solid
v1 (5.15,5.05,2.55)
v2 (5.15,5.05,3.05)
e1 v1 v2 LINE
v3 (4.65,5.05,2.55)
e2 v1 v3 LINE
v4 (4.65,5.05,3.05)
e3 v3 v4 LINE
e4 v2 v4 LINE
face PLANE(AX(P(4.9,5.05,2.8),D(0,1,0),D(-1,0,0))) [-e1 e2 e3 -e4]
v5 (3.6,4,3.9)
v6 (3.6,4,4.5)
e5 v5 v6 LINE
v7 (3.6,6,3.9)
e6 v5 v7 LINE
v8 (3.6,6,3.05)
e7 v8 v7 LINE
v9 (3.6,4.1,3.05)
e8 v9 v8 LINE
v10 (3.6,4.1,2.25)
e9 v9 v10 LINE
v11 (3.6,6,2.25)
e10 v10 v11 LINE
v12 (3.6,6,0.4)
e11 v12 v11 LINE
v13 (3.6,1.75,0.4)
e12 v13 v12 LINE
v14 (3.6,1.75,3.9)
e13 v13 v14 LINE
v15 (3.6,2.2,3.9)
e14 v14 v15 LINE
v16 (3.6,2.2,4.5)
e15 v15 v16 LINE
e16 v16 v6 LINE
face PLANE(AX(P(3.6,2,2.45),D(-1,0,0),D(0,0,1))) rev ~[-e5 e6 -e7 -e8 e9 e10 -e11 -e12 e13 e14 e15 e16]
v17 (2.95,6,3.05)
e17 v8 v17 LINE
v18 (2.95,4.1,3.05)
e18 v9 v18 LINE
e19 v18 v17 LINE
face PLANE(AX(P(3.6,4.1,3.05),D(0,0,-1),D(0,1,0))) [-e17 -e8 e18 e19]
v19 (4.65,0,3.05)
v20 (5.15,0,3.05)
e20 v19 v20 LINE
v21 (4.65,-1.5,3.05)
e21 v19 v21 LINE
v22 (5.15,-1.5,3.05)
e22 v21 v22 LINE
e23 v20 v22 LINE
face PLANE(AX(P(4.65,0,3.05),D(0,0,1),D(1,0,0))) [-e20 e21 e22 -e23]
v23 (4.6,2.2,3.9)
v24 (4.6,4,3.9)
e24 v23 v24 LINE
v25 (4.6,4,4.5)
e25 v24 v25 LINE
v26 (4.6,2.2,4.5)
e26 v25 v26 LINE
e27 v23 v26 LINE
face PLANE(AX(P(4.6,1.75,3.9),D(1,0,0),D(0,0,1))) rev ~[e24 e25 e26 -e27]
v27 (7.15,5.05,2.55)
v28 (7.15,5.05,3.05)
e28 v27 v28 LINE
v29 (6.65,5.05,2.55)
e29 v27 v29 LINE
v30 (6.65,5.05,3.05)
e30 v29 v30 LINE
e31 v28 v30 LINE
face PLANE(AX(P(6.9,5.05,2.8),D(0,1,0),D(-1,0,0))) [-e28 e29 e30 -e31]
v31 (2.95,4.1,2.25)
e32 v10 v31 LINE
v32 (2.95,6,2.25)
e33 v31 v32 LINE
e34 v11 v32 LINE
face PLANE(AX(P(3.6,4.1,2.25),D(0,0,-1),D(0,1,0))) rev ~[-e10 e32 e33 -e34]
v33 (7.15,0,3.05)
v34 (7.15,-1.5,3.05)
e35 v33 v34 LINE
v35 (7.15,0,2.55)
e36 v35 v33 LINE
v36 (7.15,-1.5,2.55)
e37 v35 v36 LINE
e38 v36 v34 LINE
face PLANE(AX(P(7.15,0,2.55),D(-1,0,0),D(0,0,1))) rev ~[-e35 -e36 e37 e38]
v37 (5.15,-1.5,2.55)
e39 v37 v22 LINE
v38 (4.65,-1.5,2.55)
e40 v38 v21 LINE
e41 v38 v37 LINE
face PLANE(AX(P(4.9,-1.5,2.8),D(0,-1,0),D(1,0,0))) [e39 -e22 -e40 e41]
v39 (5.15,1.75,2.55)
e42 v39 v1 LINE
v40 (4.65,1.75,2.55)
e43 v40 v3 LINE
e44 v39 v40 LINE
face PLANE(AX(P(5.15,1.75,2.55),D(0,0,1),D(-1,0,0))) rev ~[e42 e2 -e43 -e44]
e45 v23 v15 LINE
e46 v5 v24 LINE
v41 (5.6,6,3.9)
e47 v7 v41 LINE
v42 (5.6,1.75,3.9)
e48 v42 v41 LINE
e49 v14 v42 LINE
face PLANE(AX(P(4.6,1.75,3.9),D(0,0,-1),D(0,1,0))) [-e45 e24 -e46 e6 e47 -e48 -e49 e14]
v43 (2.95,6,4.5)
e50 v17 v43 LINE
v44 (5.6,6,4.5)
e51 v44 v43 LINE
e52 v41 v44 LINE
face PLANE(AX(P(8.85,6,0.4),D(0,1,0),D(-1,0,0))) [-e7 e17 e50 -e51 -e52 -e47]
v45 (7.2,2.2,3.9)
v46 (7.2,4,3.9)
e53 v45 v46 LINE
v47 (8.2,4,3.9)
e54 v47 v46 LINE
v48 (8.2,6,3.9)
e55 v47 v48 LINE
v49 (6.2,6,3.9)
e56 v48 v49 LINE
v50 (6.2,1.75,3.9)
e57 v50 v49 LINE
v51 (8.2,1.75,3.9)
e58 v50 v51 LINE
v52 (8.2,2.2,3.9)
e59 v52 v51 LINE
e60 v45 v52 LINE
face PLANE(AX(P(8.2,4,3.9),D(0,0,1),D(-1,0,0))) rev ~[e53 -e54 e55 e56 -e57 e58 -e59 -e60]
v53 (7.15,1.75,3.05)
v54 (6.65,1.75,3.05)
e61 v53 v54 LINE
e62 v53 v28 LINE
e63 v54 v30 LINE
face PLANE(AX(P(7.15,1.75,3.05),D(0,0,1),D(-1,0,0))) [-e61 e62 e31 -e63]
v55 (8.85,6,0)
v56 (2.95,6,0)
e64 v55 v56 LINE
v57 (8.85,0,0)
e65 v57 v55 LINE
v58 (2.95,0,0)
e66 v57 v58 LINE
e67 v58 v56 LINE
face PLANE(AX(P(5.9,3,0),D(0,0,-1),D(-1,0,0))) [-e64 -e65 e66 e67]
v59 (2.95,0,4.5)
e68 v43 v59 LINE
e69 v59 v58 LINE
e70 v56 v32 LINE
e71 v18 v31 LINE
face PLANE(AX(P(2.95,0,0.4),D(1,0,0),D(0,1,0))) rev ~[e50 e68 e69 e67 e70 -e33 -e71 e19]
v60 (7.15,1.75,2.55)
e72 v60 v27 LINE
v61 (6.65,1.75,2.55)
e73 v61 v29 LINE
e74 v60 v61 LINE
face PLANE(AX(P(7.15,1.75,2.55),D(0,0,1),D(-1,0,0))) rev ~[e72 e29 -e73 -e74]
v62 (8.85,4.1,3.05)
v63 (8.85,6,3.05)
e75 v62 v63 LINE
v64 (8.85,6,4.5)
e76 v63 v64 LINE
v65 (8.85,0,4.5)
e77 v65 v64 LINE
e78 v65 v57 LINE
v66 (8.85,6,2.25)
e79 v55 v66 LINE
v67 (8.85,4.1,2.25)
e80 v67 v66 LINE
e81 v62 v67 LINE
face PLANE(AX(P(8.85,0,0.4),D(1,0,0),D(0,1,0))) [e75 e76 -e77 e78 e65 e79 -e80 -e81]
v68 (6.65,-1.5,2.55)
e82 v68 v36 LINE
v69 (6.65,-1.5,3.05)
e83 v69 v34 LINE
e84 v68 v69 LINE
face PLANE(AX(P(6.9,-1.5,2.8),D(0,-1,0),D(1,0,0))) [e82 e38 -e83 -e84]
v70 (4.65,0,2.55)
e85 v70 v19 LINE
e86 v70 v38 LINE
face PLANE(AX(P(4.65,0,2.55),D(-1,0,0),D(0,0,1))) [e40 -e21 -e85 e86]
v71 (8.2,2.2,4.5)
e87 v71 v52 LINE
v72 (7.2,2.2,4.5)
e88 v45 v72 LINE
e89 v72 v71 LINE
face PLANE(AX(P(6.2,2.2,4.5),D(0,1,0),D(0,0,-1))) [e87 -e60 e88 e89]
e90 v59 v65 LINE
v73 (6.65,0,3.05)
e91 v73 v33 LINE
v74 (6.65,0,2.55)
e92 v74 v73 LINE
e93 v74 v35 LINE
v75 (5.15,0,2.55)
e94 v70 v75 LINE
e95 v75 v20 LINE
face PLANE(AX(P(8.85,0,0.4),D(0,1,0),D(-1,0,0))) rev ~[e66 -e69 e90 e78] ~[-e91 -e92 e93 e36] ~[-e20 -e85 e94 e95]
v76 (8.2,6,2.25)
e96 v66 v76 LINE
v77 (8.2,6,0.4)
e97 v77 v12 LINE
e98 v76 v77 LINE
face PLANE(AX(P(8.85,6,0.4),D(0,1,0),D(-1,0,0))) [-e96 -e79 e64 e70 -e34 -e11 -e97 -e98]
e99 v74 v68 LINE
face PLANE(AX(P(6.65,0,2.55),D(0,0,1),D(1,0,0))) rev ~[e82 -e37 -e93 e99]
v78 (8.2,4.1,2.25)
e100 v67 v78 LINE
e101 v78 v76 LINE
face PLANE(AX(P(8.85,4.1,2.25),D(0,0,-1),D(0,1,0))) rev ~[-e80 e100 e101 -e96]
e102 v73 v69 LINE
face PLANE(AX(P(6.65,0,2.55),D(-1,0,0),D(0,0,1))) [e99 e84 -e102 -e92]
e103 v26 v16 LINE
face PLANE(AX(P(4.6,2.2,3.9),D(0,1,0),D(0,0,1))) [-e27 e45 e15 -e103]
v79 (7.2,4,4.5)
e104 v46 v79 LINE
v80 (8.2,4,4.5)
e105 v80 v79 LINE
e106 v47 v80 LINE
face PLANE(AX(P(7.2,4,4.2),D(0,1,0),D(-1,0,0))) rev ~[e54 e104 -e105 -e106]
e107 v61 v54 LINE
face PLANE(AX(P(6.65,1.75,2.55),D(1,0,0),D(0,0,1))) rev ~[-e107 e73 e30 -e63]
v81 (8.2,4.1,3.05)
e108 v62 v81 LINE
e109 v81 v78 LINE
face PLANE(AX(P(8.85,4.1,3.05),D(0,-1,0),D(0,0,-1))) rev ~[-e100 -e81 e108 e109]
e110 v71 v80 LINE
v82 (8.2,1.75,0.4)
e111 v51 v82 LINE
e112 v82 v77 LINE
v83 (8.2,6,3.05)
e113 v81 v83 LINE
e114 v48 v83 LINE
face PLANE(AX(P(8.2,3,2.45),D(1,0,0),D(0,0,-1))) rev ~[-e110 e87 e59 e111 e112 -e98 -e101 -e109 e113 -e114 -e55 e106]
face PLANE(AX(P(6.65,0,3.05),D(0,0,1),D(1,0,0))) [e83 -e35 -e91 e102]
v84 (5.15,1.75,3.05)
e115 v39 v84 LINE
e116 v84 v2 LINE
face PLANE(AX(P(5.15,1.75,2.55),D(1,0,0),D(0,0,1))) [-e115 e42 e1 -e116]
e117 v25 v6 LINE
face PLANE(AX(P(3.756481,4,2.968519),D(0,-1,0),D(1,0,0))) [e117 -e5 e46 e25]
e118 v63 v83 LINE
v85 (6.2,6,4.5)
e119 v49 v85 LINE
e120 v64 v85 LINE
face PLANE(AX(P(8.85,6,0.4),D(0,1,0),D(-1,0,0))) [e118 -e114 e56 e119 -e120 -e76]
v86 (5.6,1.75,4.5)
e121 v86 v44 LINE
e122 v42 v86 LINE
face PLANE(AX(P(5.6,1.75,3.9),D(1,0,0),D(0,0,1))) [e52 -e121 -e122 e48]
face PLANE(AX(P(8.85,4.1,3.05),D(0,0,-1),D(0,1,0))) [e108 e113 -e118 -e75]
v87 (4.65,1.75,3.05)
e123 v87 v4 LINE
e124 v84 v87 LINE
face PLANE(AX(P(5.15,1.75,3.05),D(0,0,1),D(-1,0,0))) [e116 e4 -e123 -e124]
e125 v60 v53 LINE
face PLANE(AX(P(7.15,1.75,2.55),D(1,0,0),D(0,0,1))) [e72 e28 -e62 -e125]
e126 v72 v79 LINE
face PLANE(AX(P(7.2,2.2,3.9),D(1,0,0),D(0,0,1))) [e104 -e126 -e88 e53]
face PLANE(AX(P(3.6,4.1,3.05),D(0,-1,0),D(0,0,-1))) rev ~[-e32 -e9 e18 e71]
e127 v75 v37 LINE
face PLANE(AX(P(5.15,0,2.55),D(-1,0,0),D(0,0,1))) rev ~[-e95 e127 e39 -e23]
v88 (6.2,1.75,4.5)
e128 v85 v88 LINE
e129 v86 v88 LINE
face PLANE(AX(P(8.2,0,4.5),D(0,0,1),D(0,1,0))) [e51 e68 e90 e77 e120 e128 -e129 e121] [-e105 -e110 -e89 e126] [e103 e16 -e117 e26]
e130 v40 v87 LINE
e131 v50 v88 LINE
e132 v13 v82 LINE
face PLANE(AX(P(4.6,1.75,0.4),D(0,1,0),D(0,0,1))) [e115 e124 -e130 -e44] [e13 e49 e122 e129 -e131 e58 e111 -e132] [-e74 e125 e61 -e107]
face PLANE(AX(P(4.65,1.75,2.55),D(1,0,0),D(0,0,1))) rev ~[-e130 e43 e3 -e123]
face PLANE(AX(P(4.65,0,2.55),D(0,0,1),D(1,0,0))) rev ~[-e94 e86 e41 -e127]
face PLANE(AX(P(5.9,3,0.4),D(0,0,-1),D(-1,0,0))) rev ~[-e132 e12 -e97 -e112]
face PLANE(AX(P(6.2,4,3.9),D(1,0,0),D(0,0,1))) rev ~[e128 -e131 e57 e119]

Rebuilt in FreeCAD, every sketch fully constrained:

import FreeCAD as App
import Part
import Sketcher
Q = App.Units.Quantity


def add_polygon(sketch, points):
    """Adds a closed chain of lines whose ends are joined by coincident constraints."""
    first, n = sketch.GeometryCount, len(points)
    for a, b in zip(points, points[1:] + points[:1]):
        sketch.addGeometry(Part.LineSegment(App.Vector(*a, 0), App.Vector(*b, 0)), False)
    for i in range(n):
        sketch.addConstraint(Sketcher.Constraint("Coincident", first + i, 2, first + (i + 1) % n, 1))

doc = App.newDocument("Part")
body = doc.addObject("PartDesign::Body", "Body")

# Sketch on YZ plane
sketch1 = body.newObject("Sketcher::SketchObject", "Sketch")
sketch1.AttachmentSupport = (doc.getObject("YZ_Plane"), [""])
sketch1.MapMode = "FlatFace"
sketch1.AttachmentOffset = App.Placement(App.Vector(0, 0, 4.6), App.Rotation())
add_polygon(sketch1, [(1.8, 4.5), (1.8, 0.4), (0, 0.4), (0, 4.5)])  # lines 0-3
sketch1.addConstraint([
    Sketcher.Constraint("Vertical", 0),
    Sketcher.Constraint("Horizontal", 1),
    Sketcher.Constraint("Vertical", 2),
    Sketcher.Constraint("Horizontal", 3),
    Sketcher.Constraint("PointOnObject", 1, 2, -2),
    Sketcher.Constraint("DistanceY", 0, 2, 0, 1, Q("4.1 mm")),
    Sketcher.Constraint("DistanceX", 1, 2, 1, 1, Q("1.75 mm")),
    Sketcher.Constraint("DistanceY", -1, 1, 0, 2, Q("0.4 mm")),
])
pad1 = body.newObject("PartDesign::Pad", "Pad")
pad1.Profile = sketch1
pad1.Length = 1.6

# Sketch on YZ plane
sketch2 = body.newObject("Sketcher::SketchObject", "Sketch001")
sketch2.AttachmentSupport = (doc.getObject("YZ_Plane"), [""])
sketch2.MapMode = "FlatFace"
sketch2.AttachmentOffset = App.Placement(App.Vector(0, 0, 6.2), App.Rotation())
add_polygon(sketch2, [(1.75, 0.4), (1.75, 3.9), (2.2, 3.9), (2.2, 4.5), (0, 4.5), (0, 0.4)])  # lines 0-5
sketch2.addConstraint([
    Sketcher.Constraint("Vertical", 0),
    Sketcher.Constraint("Horizontal", 1),
    Sketcher.Constraint("Vertical", 2),
    Sketcher.Constraint("Horizontal", 3),
    Sketcher.Constraint("Vertical", 4),
    Sketcher.Constraint("Horizontal", 5),
    Sketcher.Constraint("PointOnObject", 3, 2, -2),
    Sketcher.Constraint("DistanceX", 3, 2, 3, 1, Q("2.2 mm")),
    Sketcher.Constraint("DistanceY", 0, 1, 0, 2, Q("3.5 mm")),
    Sketcher.Constraint("DistanceY", 2, 1, 2, 2, Q("0.6 mm")),
    Sketcher.Constraint("DistanceX", 1, 1, 1, 2, Q("0.45 mm")),
    Sketcher.Constraint("DistanceY", -1, 1, 0, 2, Q("3.9 mm")),
])
pad2 = body.newObject("PartDesign::Pad", "Pad001")
pad2.Profile = sketch2
pad2.Length = 2

# Sketch on XZ plane
sketch3 = body.newObject("Sketcher::SketchObject", "Sketch002")
sketch3.AttachmentSupport = (doc.getObject("XZ_Plane"), [""])
sketch3.MapMode = "FlatFace"
sketch3.AttachmentOffset = App.Placement(App.Vector(0, 0, -2.2), App.Rotation())
add_polygon(sketch3, [(7.2, 4.5), (7.2, 3.9), (6.2, 3.9), (6.2, 4.5)])  # lines 0-3
sketch3.addConstraint([
    Sketcher.Constraint("Vertical", 0),
    Sketcher.Constraint("Horizontal", 1),
    Sketcher.Constraint("Vertical", 2),
    Sketcher.Constraint("Horizontal", 3),
    Sketcher.Constraint("DistanceX", 1, 2, 1, 1, Q("1 mm")),
    Sketcher.Constraint("DistanceY", 0, 2, 0, 1, Q("0.6 mm")),
    Sketcher.Constraint("DistanceX", -1, 1, 0, 2, Q("7.2 mm")),
    Sketcher.Constraint("DistanceY", -1, 1, 0, 2, Q("3.9 mm")),
])
pad3 = body.newObject("PartDesign::Pad", "Pad002")
pad3.Profile = sketch3
pad3.Length = 1.8
pad3.Reversed = True

# Sketch on XZ plane
sketch4 = body.newObject("Sketcher::SketchObject", "Sketch003")
sketch4.AttachmentSupport = (doc.getObject("XZ_Plane"), [""])
sketch4.MapMode = "FlatFace"
sketch4.AttachmentOffset = App.Placement(App.Vector(0, 0, -1.75), App.Rotation())
add_polygon(sketch4, [(5.6, 4.5), (5.6, 3.9), (4.6, 3.9), (4.6, 4.5)])  # lines 0-3
sketch4.addConstraint([
    Sketcher.Constraint("Vertical", 0),
    Sketcher.Constraint("Horizontal", 1),
    Sketcher.Constraint("Vertical", 2),
    Sketcher.Constraint("Horizontal", 3),
    Sketcher.Constraint("DistanceX", 1, 2, 1, 1, Q("1 mm")),
    Sketcher.Constraint("DistanceY", 0, 2, 0, 1, Q("0.6 mm")),
    Sketcher.Constraint("DistanceX", -1, 1, 0, 2, Q("5.6 mm")),
    Sketcher.Constraint("DistanceY", -1, 1, 0, 2, Q("3.9 mm")),
])
pad4 = body.newObject("PartDesign::Pad", "Pad003")
pad4.Profile = sketch4
pad4.Length = 2.25
pad4.Reversed = True

# Sketch on YZ plane
sketch5 = body.newObject("Sketcher::SketchObject", "Sketch004")
sketch5.AttachmentSupport = (doc.getObject("YZ_Plane"), [""])
sketch5.MapMode = "FlatFace"
sketch5.AttachmentOffset = App.Placement(App.Vector(0, 0, 4.6), App.Rotation())
add_polygon(sketch5, [(1.75, 0.4), (0, 0.4), (0, 4.5), (2.2, 4.5), (2.2, 3.9), (1.75, 3.9)])  # lines 0-5
sketch5.addConstraint([
    Sketcher.Constraint("Horizontal", 0),
    Sketcher.Constraint("Vertical", 1),
    Sketcher.Constraint("Horizontal", 2),
    Sketcher.Constraint("Vertical", 3),
    Sketcher.Constraint("Horizontal", 4),
    Sketcher.Constraint("Vertical", 5),
    Sketcher.Constraint("PointOnObject", 0, 2, -2),
    Sketcher.Constraint("DistanceX", 2, 1, 2, 2, Q("2.2 mm")),
    Sketcher.Constraint("DistanceY", 1, 1, 1, 2, Q("4.1 mm")),
    Sketcher.Constraint("DistanceY", 3, 2, 3, 1, Q("0.6 mm")),
    Sketcher.Constraint("DistanceX", 0, 2, 0, 1, Q("1.75 mm")),
    Sketcher.Constraint("DistanceY", -1, 1, 0, 2, Q("0.4 mm")),
])
pad5 = body.newObject("PartDesign::Pad", "Pad004")
pad5.Profile = sketch5
pad5.Length = 1
pad5.Reversed = True

# Sketch on YZ plane
sketch6 = body.newObject("Sketcher::SketchObject", "Sketch005")
sketch6.AttachmentSupport = (doc.getObject("YZ_Plane"), [""])
sketch6.MapMode = "FlatFace"
sketch6.AttachmentOffset = App.Placement(App.Vector(0, 0, 3.6), App.Rotation())
add_polygon(sketch6, [(4, 0.4), (0, 0.4), (0, 4.5), (4, 4.5)])  # lines 0-3
sketch6.addConstraint([
    Sketcher.Constraint("Horizontal", 0),
    Sketcher.Constraint("Vertical", 1),
    Sketcher.Constraint("Horizontal", 2),
    Sketcher.Constraint("Vertical", 3),
    Sketcher.Constraint("PointOnObject", 0, 2, -2),
    Sketcher.Constraint("DistanceX", 0, 2, 0, 1, Q("4 mm")),
    Sketcher.Constraint("DistanceY", 1, 1, 1, 2, Q("4.1 mm")),
    Sketcher.Constraint("DistanceY", -1, 1, 0, 2, Q("0.4 mm")),
])
pad6 = body.newObject("PartDesign::Pad", "Pad005")
pad6.Profile = sketch6
pad6.Length = 0.65
pad6.Reversed = True

# Sketch on XZ plane
sketch7 = body.newObject("Sketcher::SketchObject", "Sketch006")
sketch7.AttachmentSupport = (doc.getObject("XZ_Plane"), [""])
sketch7.MapMode = "FlatFace"
sketch7.AttachmentOffset = App.Placement(App.Vector(0, 0, -4), App.Rotation())
add_polygon(sketch7, [(8.2, 4.5), (8.2, 3.9), (6.2, 3.9), (6.2, 4.5)])  # lines 0-3
add_polygon(sketch7, [(3.6, 3.9), (3.6, 0.4), (3, 0.4), (3, 4.5), (5.6, 4.5), (5.6, 3.9)])  # lines 4-9
sketch7.addConstraint([
    Sketcher.Constraint("Vertical", 0),
    Sketcher.Constraint("Horizontal", 1),
    Sketcher.Constraint("Vertical", 2),
    Sketcher.Constraint("Horizontal", 3),
    Sketcher.Constraint("Vertical", 4),
    Sketcher.Constraint("Horizontal", 5),
    Sketcher.Constraint("Vertical", 6),
    Sketcher.Constraint("Horizontal", 7),
    Sketcher.Constraint("Vertical", 8),
    Sketcher.Constraint("Horizontal", 9),
    Sketcher.Constraint("Horizontal", 3, 2, 6, 2),
    Sketcher.Constraint("Horizontal", 1, 2, 8, 2),
    Sketcher.Constraint("Equal", 3, 9),
    Sketcher.Constraint("DistanceX", 1, 2, 1, 1, Q("2 mm")),
    Sketcher.Constraint("DistanceY", 0, 2, 0, 1, Q("0.6 mm")),
    Sketcher.Constraint("DistanceY", 4, 2, 4, 1, Q("3.5 mm")),
    Sketcher.Constraint("DistanceX", 5, 2, 5, 1, Q("0.65 mm")),
    Sketcher.Constraint("DistanceX", -1, 1, 0, 2, Q("8.2 mm")),
    Sketcher.Constraint("DistanceY", -1, 1, 0, 2, Q("3.9 mm")),
    Sketcher.Constraint("DistanceX", -1, 1, 4, 2, Q("3.6 mm")),
])
pad7 = body.newObject("PartDesign::Pad", "Pad006")
pad7.Profile = sketch7
pad7.Length = 2
pad7.Reversed = True

# Sketch on YZ plane
sketch8 = body.newObject("Sketcher::SketchObject", "Sketch007")
sketch8.AttachmentSupport = (doc.getObject("YZ_Plane"), [""])
sketch8.MapMode = "FlatFace"
sketch8.AttachmentOffset = App.Placement(App.Vector(0, 0, 8.2), App.Rotation())
add_polygon(sketch8, [(6, 4.5), (0, 4.5), (0, 0.4), (6, 0.4)])  # lines 0-3
sketch8.addConstraint([
    Sketcher.Constraint("Horizontal", 0),
    Sketcher.Constraint("Vertical", 1),
    Sketcher.Constraint("Horizontal", 2),
    Sketcher.Constraint("Vertical", 3),
    Sketcher.Constraint("PointOnObject", 0, 2, -2),
    Sketcher.Constraint("DistanceX", 0, 2, 0, 1, Q("6 mm")),
    Sketcher.Constraint("DistanceY", 1, 2, 1, 1, Q("4.1 mm")),
    Sketcher.Constraint("DistanceY", -1, 1, 0, 2, Q("4.5 mm")),
])
pad8 = body.newObject("PartDesign::Pad", "Pad007")
pad8.Profile = sketch8
pad8.Length = 0.65

# Sketch on XY plane
sketch9 = body.newObject("Sketcher::SketchObject", "Sketch008")
sketch9.AttachmentSupport = (doc.getObject("XY_Plane"), [""])
sketch9.MapMode = "FlatFace"
sketch9.AttachmentOffset = App.Placement(App.Vector(0, 0, 0.4), App.Rotation())
add_polygon(sketch9, [(9, 6), (9, 0), (3, 0), (3, 6)])  # lines 0-3
sketch9.addConstraint([
    Sketcher.Constraint("Vertical", 0),
    Sketcher.Constraint("Horizontal", 1),
    Sketcher.Constraint("Vertical", 2),
    Sketcher.Constraint("Horizontal", 3),
    Sketcher.Constraint("PointOnObject", 0, 2, -1),
    Sketcher.Constraint("DistanceY", 0, 2, 0, 1, Q("6 mm")),
    Sketcher.Constraint("DistanceX", 1, 2, 1, 1, Q("5.9 mm")),
    Sketcher.Constraint("DistanceX", -1, 1, 0, 2, Q("8.85 mm")),
])
pad9 = body.newObject("PartDesign::Pad", "Pad008")
pad9.Profile = sketch9
pad9.Length = 0.4
pad9.Reversed = True

# Sketch on YZ plane
sketch10 = body.newObject("Sketcher::SketchObject", "Sketch009")
sketch10.AttachmentSupport = (doc.getObject("YZ_Plane"), [""])
sketch10.MapMode = "FlatFace"
sketch10.AttachmentOffset = App.Placement(App.Vector(0, 0, 3.6), App.Rotation())
add_polygon(sketch10, [(6, 3), (4.1, 3), (4.1, 2.2), (6, 2.2)])  # lines 0-3
sketch10.addConstraint([
    Sketcher.Constraint("Horizontal", 0),
    Sketcher.Constraint("Vertical", 1),
    Sketcher.Constraint("Horizontal", 2),
    Sketcher.Constraint("Vertical", 3),
    Sketcher.Constraint("DistanceX", 0, 2, 0, 1, Q("1.9 mm")),
    Sketcher.Constraint("DistanceY", 1, 2, 1, 1, Q("0.8 mm")),
    Sketcher.Constraint("DistanceX", -1, 1, 2, 2, Q("6 mm")),
    Sketcher.Constraint("DistanceY", -1, 1, 0, 2, Q("3.05 mm")),
])
pocket1 = body.newObject("PartDesign::Pocket", "Pocket")
pocket1.Profile = sketch10
pocket1.Type = "ThroughAll"

# Sketch on YZ plane
sketch11 = body.newObject("Sketcher::SketchObject", "Sketch010")
sketch11.AttachmentSupport = (doc.getObject("YZ_Plane"), [""])
sketch11.MapMode = "FlatFace"
sketch11.AttachmentOffset = App.Placement(App.Vector(0, 0, 8.85), App.Rotation())
add_polygon(sketch11, [(6, 3), (4.1, 3), (4.1, 2.2), (6, 2.2)])  # lines 0-3
sketch11.addConstraint([
    Sketcher.Constraint("Horizontal", 0),
    Sketcher.Constraint("Vertical", 1),
    Sketcher.Constraint("Horizontal", 2),
    Sketcher.Constraint("Vertical", 3),
    Sketcher.Constraint("DistanceX", 0, 2, 0, 1, Q("1.9 mm")),
    Sketcher.Constraint("DistanceY", 1, 2, 1, 1, Q("0.8 mm")),
    Sketcher.Constraint("DistanceX", -1, 1, 2, 2, Q("6 mm")),
    Sketcher.Constraint("DistanceY", -1, 1, 0, 2, Q("3.05 mm")),
])
pocket2 = body.newObject("PartDesign::Pocket", "Pocket001")
pocket2.Profile = sketch11
pocket2.Type = "ThroughAll"

# Sketch on XZ plane
sketch12 = body.newObject("Sketcher::SketchObject", "Sketch011")
sketch12.AttachmentSupport = (doc.getObject("XZ_Plane"), [""])
sketch12.MapMode = "FlatFace"
sketch12.AttachmentOffset = App.Placement(App.Vector(0, 0, -1.75), App.Rotation())
add_polygon(sketch12, [(5.2, 3), (5.2, 2.5), (4.7, 2.5), (4.7, 3)])  # lines 0-3
sketch12.addConstraint([
    Sketcher.Constraint("Vertical", 0),
    Sketcher.Constraint("Horizontal", 1),
    Sketcher.Constraint("Vertical", 2),
    Sketcher.Constraint("Horizontal", 3),
    Sketcher.Constraint("Equal", 3, 0),
    Sketcher.Constraint("DistanceX", 1, 2, 1, 1, Q("0.5 mm")),
    Sketcher.Constraint("DistanceX", -1, 1, 0, 2, Q("5.15 mm")),
    Sketcher.Constraint("DistanceY", -1, 1, 0, 2, Q("2.55 mm")),
])
pad10 = body.newObject("PartDesign::Pad", "Pad009")
pad10.Profile = sketch12
pad10.Length = 3.3
pad10.Reversed = True

# Sketch on XZ plane
sketch13 = body.newObject("Sketcher::SketchObject", "Sketch012")
sketch13.AttachmentSupport = (doc.getObject("XZ_Plane"), [""])
sketch13.MapMode = "FlatFace"
sketch13.AttachmentOffset = App.Placement(App.Vector(0, 0, -1.75), App.Rotation())
add_polygon(sketch13, [(7.2, 3), (7.2, 2.5), (6.7, 2.5), (6.7, 3)])  # lines 0-3
sketch13.addConstraint([
    Sketcher.Constraint("Vertical", 0),
    Sketcher.Constraint("Horizontal", 1),
    Sketcher.Constraint("Vertical", 2),
    Sketcher.Constraint("Horizontal", 3),
    Sketcher.Constraint("Equal", 3, 0),
    Sketcher.Constraint("DistanceX", 1, 2, 1, 1, Q("0.5 mm")),
    Sketcher.Constraint("DistanceX", -1, 1, 0, 2, Q("7.15 mm")),
    Sketcher.Constraint("DistanceY", -1, 1, 0, 2, Q("2.55 mm")),
])
pad11 = body.newObject("PartDesign::Pad", "Pad010")
pad11.Profile = sketch13
pad11.Length = 3.3
pad11.Reversed = True

# Sketch on XZ plane
sketch14 = body.newObject("Sketcher::SketchObject", "Sketch013")
sketch14.AttachmentSupport = (doc.getObject("XZ_Plane"), [""])
sketch14.MapMode = "FlatFace"
add_polygon(sketch14, [(4.7, 3), (4.7, 2.5), (5.2, 2.5), (5.2, 3)])  # lines 0-3
sketch14.addConstraint([
    Sketcher.Constraint("Vertical", 0),
    Sketcher.Constraint("Horizontal", 1),
    Sketcher.Constraint("Vertical", 2),
    Sketcher.Constraint("Horizontal", 3),
    Sketcher.Constraint("Equal", 3, 0),
    Sketcher.Constraint("DistanceX", 1, 1, 1, 2, Q("0.5 mm")),
    Sketcher.Constraint("DistanceX", -1, 1, 0, 2, Q("4.65 mm")),
    Sketcher.Constraint("DistanceY", -1, 1, 0, 2, Q("2.55 mm")),
])
pad12 = body.newObject("PartDesign::Pad", "Pad011")
pad12.Profile = sketch14
pad12.Length = 1.5

# Sketch on XZ plane
sketch15 = body.newObject("Sketcher::SketchObject", "Sketch014")
sketch15.AttachmentSupport = (doc.getObject("XZ_Plane"), [""])
sketch15.MapMode = "FlatFace"
add_polygon(sketch15, [(6.7, 3), (6.7, 2.5), (7.2, 2.5), (7.2, 3)])  # lines 0-3
sketch15.addConstraint([
    Sketcher.Constraint("Vertical", 0),
    Sketcher.Constraint("Horizontal", 1),
    Sketcher.Constraint("Vertical", 2),
    Sketcher.Constraint("Horizontal", 3),
    Sketcher.Constraint("Equal", 3, 0),
    Sketcher.Constraint("DistanceX", 1, 1, 1, 2, Q("0.5 mm")),
    Sketcher.Constraint("DistanceX", -1, 1, 0, 2, Q("6.65 mm")),
    Sketcher.Constraint("DistanceY", -1, 1, 0, 2, Q("2.55 mm")),
])
pad13 = body.newObject("PartDesign::Pad", "Pad012")
pad13.Profile = sketch15
pad13.Length = 1.5

doc.recompute()
